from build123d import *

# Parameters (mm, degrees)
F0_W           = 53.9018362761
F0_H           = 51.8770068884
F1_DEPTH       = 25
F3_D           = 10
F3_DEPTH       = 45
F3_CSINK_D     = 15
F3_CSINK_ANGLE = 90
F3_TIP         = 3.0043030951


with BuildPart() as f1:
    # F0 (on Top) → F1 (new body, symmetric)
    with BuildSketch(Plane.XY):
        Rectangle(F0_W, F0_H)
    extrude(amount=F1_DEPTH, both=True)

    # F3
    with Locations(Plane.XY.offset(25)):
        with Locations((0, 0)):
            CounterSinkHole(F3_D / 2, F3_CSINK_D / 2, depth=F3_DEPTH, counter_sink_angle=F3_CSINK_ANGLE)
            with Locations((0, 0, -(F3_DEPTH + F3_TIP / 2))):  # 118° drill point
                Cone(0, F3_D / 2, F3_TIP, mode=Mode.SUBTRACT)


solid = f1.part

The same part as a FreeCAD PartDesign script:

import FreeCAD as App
import Part
import Sketcher

V = App.Vector
Q = App.Units.Quantity

doc = App.newDocument("Part")
body = doc.addObject("PartDesign::Body", "Body")

# Sketch on XY plane
sketch1 = body.newObject("Sketcher::SketchObject", "Sketch")
sketch1.AttachmentSupport = (doc.getObject("XY_Plane"), [""])
sketch1.MapMode = "FlatFace"
sketch1.addGeometry([
    Part.LineSegment(V(-27, 26, 0), V(-27, -26, 0)),
    Part.LineSegment(V(-27, -26, 0), V(27, -26, 0)),
    Part.LineSegment(V(27, -26, 0), V(27, 26, 0)),
    Part.LineSegment(V(27, 26, 0), V(-27, 26, 0)),
], False)
sketch1.addConstraint([
    Sketcher.Constraint("Coincident", 0, 2, 1, 1),
    Sketcher.Constraint("Coincident", 1, 2, 2, 1),
    Sketcher.Constraint("Coincident", 2, 2, 3, 1),
    Sketcher.Constraint("Coincident", 3, 2, 0, 1),
    Sketcher.Constraint("Vertical", 0),
    Sketcher.Constraint("Horizontal", 1),
    Sketcher.Constraint("Vertical", 2),
    Sketcher.Constraint("Horizontal", 3),
    Sketcher.Constraint("Symmetric", 0, 2, 2, 2, -1, 1),
    Sketcher.Constraint("DistanceX", 1, 1, 1, 2, Q("53.901836 mm")),
    Sketcher.Constraint("DistanceY", 0, 2, 0, 1, Q("51.877007 mm")),
])
pad1 = body.newObject("PartDesign::Pad", "Pad")
pad1.Profile = sketch1
pad1.Length = 50
pad1.Midplane = True

# Sketch on XY plane
sketch2 = body.newObject("Sketcher::SketchObject", "Sketch001")
sketch2.AttachmentSupport = (doc.getObject("XY_Plane"), [""])
sketch2.MapMode = "FlatFace"
sketch2.AttachmentOffset = App.Placement(V(0, 0, 25), App.Rotation())
sketch2.addGeometry(Part.Circle(V(0, 0, 0), V(0, 0, 1), 5), False)
sketch2.addConstraint([
    Sketcher.Constraint("Coincident", 0, 3, -1, 1),
    Sketcher.Constraint("Diameter", 0, Q("10 mm")),
])
doc.recompute()
hole = body.newObject("PartDesign::Hole", "Hole")
hole.Profile = sketch2
hole.ThreadType = "None"
hole.Diameter = 10
hole.DepthType = "Dimension"
hole.Depth = 45
hole.DrillPoint = "Angled"
hole.DrillPointAngle = 118
hole.HoleCutType = "Countersink"
hole.HoleCutDiameter = 15
hole.HoleCutCountersinkAngle = 90

doc.recompute()
